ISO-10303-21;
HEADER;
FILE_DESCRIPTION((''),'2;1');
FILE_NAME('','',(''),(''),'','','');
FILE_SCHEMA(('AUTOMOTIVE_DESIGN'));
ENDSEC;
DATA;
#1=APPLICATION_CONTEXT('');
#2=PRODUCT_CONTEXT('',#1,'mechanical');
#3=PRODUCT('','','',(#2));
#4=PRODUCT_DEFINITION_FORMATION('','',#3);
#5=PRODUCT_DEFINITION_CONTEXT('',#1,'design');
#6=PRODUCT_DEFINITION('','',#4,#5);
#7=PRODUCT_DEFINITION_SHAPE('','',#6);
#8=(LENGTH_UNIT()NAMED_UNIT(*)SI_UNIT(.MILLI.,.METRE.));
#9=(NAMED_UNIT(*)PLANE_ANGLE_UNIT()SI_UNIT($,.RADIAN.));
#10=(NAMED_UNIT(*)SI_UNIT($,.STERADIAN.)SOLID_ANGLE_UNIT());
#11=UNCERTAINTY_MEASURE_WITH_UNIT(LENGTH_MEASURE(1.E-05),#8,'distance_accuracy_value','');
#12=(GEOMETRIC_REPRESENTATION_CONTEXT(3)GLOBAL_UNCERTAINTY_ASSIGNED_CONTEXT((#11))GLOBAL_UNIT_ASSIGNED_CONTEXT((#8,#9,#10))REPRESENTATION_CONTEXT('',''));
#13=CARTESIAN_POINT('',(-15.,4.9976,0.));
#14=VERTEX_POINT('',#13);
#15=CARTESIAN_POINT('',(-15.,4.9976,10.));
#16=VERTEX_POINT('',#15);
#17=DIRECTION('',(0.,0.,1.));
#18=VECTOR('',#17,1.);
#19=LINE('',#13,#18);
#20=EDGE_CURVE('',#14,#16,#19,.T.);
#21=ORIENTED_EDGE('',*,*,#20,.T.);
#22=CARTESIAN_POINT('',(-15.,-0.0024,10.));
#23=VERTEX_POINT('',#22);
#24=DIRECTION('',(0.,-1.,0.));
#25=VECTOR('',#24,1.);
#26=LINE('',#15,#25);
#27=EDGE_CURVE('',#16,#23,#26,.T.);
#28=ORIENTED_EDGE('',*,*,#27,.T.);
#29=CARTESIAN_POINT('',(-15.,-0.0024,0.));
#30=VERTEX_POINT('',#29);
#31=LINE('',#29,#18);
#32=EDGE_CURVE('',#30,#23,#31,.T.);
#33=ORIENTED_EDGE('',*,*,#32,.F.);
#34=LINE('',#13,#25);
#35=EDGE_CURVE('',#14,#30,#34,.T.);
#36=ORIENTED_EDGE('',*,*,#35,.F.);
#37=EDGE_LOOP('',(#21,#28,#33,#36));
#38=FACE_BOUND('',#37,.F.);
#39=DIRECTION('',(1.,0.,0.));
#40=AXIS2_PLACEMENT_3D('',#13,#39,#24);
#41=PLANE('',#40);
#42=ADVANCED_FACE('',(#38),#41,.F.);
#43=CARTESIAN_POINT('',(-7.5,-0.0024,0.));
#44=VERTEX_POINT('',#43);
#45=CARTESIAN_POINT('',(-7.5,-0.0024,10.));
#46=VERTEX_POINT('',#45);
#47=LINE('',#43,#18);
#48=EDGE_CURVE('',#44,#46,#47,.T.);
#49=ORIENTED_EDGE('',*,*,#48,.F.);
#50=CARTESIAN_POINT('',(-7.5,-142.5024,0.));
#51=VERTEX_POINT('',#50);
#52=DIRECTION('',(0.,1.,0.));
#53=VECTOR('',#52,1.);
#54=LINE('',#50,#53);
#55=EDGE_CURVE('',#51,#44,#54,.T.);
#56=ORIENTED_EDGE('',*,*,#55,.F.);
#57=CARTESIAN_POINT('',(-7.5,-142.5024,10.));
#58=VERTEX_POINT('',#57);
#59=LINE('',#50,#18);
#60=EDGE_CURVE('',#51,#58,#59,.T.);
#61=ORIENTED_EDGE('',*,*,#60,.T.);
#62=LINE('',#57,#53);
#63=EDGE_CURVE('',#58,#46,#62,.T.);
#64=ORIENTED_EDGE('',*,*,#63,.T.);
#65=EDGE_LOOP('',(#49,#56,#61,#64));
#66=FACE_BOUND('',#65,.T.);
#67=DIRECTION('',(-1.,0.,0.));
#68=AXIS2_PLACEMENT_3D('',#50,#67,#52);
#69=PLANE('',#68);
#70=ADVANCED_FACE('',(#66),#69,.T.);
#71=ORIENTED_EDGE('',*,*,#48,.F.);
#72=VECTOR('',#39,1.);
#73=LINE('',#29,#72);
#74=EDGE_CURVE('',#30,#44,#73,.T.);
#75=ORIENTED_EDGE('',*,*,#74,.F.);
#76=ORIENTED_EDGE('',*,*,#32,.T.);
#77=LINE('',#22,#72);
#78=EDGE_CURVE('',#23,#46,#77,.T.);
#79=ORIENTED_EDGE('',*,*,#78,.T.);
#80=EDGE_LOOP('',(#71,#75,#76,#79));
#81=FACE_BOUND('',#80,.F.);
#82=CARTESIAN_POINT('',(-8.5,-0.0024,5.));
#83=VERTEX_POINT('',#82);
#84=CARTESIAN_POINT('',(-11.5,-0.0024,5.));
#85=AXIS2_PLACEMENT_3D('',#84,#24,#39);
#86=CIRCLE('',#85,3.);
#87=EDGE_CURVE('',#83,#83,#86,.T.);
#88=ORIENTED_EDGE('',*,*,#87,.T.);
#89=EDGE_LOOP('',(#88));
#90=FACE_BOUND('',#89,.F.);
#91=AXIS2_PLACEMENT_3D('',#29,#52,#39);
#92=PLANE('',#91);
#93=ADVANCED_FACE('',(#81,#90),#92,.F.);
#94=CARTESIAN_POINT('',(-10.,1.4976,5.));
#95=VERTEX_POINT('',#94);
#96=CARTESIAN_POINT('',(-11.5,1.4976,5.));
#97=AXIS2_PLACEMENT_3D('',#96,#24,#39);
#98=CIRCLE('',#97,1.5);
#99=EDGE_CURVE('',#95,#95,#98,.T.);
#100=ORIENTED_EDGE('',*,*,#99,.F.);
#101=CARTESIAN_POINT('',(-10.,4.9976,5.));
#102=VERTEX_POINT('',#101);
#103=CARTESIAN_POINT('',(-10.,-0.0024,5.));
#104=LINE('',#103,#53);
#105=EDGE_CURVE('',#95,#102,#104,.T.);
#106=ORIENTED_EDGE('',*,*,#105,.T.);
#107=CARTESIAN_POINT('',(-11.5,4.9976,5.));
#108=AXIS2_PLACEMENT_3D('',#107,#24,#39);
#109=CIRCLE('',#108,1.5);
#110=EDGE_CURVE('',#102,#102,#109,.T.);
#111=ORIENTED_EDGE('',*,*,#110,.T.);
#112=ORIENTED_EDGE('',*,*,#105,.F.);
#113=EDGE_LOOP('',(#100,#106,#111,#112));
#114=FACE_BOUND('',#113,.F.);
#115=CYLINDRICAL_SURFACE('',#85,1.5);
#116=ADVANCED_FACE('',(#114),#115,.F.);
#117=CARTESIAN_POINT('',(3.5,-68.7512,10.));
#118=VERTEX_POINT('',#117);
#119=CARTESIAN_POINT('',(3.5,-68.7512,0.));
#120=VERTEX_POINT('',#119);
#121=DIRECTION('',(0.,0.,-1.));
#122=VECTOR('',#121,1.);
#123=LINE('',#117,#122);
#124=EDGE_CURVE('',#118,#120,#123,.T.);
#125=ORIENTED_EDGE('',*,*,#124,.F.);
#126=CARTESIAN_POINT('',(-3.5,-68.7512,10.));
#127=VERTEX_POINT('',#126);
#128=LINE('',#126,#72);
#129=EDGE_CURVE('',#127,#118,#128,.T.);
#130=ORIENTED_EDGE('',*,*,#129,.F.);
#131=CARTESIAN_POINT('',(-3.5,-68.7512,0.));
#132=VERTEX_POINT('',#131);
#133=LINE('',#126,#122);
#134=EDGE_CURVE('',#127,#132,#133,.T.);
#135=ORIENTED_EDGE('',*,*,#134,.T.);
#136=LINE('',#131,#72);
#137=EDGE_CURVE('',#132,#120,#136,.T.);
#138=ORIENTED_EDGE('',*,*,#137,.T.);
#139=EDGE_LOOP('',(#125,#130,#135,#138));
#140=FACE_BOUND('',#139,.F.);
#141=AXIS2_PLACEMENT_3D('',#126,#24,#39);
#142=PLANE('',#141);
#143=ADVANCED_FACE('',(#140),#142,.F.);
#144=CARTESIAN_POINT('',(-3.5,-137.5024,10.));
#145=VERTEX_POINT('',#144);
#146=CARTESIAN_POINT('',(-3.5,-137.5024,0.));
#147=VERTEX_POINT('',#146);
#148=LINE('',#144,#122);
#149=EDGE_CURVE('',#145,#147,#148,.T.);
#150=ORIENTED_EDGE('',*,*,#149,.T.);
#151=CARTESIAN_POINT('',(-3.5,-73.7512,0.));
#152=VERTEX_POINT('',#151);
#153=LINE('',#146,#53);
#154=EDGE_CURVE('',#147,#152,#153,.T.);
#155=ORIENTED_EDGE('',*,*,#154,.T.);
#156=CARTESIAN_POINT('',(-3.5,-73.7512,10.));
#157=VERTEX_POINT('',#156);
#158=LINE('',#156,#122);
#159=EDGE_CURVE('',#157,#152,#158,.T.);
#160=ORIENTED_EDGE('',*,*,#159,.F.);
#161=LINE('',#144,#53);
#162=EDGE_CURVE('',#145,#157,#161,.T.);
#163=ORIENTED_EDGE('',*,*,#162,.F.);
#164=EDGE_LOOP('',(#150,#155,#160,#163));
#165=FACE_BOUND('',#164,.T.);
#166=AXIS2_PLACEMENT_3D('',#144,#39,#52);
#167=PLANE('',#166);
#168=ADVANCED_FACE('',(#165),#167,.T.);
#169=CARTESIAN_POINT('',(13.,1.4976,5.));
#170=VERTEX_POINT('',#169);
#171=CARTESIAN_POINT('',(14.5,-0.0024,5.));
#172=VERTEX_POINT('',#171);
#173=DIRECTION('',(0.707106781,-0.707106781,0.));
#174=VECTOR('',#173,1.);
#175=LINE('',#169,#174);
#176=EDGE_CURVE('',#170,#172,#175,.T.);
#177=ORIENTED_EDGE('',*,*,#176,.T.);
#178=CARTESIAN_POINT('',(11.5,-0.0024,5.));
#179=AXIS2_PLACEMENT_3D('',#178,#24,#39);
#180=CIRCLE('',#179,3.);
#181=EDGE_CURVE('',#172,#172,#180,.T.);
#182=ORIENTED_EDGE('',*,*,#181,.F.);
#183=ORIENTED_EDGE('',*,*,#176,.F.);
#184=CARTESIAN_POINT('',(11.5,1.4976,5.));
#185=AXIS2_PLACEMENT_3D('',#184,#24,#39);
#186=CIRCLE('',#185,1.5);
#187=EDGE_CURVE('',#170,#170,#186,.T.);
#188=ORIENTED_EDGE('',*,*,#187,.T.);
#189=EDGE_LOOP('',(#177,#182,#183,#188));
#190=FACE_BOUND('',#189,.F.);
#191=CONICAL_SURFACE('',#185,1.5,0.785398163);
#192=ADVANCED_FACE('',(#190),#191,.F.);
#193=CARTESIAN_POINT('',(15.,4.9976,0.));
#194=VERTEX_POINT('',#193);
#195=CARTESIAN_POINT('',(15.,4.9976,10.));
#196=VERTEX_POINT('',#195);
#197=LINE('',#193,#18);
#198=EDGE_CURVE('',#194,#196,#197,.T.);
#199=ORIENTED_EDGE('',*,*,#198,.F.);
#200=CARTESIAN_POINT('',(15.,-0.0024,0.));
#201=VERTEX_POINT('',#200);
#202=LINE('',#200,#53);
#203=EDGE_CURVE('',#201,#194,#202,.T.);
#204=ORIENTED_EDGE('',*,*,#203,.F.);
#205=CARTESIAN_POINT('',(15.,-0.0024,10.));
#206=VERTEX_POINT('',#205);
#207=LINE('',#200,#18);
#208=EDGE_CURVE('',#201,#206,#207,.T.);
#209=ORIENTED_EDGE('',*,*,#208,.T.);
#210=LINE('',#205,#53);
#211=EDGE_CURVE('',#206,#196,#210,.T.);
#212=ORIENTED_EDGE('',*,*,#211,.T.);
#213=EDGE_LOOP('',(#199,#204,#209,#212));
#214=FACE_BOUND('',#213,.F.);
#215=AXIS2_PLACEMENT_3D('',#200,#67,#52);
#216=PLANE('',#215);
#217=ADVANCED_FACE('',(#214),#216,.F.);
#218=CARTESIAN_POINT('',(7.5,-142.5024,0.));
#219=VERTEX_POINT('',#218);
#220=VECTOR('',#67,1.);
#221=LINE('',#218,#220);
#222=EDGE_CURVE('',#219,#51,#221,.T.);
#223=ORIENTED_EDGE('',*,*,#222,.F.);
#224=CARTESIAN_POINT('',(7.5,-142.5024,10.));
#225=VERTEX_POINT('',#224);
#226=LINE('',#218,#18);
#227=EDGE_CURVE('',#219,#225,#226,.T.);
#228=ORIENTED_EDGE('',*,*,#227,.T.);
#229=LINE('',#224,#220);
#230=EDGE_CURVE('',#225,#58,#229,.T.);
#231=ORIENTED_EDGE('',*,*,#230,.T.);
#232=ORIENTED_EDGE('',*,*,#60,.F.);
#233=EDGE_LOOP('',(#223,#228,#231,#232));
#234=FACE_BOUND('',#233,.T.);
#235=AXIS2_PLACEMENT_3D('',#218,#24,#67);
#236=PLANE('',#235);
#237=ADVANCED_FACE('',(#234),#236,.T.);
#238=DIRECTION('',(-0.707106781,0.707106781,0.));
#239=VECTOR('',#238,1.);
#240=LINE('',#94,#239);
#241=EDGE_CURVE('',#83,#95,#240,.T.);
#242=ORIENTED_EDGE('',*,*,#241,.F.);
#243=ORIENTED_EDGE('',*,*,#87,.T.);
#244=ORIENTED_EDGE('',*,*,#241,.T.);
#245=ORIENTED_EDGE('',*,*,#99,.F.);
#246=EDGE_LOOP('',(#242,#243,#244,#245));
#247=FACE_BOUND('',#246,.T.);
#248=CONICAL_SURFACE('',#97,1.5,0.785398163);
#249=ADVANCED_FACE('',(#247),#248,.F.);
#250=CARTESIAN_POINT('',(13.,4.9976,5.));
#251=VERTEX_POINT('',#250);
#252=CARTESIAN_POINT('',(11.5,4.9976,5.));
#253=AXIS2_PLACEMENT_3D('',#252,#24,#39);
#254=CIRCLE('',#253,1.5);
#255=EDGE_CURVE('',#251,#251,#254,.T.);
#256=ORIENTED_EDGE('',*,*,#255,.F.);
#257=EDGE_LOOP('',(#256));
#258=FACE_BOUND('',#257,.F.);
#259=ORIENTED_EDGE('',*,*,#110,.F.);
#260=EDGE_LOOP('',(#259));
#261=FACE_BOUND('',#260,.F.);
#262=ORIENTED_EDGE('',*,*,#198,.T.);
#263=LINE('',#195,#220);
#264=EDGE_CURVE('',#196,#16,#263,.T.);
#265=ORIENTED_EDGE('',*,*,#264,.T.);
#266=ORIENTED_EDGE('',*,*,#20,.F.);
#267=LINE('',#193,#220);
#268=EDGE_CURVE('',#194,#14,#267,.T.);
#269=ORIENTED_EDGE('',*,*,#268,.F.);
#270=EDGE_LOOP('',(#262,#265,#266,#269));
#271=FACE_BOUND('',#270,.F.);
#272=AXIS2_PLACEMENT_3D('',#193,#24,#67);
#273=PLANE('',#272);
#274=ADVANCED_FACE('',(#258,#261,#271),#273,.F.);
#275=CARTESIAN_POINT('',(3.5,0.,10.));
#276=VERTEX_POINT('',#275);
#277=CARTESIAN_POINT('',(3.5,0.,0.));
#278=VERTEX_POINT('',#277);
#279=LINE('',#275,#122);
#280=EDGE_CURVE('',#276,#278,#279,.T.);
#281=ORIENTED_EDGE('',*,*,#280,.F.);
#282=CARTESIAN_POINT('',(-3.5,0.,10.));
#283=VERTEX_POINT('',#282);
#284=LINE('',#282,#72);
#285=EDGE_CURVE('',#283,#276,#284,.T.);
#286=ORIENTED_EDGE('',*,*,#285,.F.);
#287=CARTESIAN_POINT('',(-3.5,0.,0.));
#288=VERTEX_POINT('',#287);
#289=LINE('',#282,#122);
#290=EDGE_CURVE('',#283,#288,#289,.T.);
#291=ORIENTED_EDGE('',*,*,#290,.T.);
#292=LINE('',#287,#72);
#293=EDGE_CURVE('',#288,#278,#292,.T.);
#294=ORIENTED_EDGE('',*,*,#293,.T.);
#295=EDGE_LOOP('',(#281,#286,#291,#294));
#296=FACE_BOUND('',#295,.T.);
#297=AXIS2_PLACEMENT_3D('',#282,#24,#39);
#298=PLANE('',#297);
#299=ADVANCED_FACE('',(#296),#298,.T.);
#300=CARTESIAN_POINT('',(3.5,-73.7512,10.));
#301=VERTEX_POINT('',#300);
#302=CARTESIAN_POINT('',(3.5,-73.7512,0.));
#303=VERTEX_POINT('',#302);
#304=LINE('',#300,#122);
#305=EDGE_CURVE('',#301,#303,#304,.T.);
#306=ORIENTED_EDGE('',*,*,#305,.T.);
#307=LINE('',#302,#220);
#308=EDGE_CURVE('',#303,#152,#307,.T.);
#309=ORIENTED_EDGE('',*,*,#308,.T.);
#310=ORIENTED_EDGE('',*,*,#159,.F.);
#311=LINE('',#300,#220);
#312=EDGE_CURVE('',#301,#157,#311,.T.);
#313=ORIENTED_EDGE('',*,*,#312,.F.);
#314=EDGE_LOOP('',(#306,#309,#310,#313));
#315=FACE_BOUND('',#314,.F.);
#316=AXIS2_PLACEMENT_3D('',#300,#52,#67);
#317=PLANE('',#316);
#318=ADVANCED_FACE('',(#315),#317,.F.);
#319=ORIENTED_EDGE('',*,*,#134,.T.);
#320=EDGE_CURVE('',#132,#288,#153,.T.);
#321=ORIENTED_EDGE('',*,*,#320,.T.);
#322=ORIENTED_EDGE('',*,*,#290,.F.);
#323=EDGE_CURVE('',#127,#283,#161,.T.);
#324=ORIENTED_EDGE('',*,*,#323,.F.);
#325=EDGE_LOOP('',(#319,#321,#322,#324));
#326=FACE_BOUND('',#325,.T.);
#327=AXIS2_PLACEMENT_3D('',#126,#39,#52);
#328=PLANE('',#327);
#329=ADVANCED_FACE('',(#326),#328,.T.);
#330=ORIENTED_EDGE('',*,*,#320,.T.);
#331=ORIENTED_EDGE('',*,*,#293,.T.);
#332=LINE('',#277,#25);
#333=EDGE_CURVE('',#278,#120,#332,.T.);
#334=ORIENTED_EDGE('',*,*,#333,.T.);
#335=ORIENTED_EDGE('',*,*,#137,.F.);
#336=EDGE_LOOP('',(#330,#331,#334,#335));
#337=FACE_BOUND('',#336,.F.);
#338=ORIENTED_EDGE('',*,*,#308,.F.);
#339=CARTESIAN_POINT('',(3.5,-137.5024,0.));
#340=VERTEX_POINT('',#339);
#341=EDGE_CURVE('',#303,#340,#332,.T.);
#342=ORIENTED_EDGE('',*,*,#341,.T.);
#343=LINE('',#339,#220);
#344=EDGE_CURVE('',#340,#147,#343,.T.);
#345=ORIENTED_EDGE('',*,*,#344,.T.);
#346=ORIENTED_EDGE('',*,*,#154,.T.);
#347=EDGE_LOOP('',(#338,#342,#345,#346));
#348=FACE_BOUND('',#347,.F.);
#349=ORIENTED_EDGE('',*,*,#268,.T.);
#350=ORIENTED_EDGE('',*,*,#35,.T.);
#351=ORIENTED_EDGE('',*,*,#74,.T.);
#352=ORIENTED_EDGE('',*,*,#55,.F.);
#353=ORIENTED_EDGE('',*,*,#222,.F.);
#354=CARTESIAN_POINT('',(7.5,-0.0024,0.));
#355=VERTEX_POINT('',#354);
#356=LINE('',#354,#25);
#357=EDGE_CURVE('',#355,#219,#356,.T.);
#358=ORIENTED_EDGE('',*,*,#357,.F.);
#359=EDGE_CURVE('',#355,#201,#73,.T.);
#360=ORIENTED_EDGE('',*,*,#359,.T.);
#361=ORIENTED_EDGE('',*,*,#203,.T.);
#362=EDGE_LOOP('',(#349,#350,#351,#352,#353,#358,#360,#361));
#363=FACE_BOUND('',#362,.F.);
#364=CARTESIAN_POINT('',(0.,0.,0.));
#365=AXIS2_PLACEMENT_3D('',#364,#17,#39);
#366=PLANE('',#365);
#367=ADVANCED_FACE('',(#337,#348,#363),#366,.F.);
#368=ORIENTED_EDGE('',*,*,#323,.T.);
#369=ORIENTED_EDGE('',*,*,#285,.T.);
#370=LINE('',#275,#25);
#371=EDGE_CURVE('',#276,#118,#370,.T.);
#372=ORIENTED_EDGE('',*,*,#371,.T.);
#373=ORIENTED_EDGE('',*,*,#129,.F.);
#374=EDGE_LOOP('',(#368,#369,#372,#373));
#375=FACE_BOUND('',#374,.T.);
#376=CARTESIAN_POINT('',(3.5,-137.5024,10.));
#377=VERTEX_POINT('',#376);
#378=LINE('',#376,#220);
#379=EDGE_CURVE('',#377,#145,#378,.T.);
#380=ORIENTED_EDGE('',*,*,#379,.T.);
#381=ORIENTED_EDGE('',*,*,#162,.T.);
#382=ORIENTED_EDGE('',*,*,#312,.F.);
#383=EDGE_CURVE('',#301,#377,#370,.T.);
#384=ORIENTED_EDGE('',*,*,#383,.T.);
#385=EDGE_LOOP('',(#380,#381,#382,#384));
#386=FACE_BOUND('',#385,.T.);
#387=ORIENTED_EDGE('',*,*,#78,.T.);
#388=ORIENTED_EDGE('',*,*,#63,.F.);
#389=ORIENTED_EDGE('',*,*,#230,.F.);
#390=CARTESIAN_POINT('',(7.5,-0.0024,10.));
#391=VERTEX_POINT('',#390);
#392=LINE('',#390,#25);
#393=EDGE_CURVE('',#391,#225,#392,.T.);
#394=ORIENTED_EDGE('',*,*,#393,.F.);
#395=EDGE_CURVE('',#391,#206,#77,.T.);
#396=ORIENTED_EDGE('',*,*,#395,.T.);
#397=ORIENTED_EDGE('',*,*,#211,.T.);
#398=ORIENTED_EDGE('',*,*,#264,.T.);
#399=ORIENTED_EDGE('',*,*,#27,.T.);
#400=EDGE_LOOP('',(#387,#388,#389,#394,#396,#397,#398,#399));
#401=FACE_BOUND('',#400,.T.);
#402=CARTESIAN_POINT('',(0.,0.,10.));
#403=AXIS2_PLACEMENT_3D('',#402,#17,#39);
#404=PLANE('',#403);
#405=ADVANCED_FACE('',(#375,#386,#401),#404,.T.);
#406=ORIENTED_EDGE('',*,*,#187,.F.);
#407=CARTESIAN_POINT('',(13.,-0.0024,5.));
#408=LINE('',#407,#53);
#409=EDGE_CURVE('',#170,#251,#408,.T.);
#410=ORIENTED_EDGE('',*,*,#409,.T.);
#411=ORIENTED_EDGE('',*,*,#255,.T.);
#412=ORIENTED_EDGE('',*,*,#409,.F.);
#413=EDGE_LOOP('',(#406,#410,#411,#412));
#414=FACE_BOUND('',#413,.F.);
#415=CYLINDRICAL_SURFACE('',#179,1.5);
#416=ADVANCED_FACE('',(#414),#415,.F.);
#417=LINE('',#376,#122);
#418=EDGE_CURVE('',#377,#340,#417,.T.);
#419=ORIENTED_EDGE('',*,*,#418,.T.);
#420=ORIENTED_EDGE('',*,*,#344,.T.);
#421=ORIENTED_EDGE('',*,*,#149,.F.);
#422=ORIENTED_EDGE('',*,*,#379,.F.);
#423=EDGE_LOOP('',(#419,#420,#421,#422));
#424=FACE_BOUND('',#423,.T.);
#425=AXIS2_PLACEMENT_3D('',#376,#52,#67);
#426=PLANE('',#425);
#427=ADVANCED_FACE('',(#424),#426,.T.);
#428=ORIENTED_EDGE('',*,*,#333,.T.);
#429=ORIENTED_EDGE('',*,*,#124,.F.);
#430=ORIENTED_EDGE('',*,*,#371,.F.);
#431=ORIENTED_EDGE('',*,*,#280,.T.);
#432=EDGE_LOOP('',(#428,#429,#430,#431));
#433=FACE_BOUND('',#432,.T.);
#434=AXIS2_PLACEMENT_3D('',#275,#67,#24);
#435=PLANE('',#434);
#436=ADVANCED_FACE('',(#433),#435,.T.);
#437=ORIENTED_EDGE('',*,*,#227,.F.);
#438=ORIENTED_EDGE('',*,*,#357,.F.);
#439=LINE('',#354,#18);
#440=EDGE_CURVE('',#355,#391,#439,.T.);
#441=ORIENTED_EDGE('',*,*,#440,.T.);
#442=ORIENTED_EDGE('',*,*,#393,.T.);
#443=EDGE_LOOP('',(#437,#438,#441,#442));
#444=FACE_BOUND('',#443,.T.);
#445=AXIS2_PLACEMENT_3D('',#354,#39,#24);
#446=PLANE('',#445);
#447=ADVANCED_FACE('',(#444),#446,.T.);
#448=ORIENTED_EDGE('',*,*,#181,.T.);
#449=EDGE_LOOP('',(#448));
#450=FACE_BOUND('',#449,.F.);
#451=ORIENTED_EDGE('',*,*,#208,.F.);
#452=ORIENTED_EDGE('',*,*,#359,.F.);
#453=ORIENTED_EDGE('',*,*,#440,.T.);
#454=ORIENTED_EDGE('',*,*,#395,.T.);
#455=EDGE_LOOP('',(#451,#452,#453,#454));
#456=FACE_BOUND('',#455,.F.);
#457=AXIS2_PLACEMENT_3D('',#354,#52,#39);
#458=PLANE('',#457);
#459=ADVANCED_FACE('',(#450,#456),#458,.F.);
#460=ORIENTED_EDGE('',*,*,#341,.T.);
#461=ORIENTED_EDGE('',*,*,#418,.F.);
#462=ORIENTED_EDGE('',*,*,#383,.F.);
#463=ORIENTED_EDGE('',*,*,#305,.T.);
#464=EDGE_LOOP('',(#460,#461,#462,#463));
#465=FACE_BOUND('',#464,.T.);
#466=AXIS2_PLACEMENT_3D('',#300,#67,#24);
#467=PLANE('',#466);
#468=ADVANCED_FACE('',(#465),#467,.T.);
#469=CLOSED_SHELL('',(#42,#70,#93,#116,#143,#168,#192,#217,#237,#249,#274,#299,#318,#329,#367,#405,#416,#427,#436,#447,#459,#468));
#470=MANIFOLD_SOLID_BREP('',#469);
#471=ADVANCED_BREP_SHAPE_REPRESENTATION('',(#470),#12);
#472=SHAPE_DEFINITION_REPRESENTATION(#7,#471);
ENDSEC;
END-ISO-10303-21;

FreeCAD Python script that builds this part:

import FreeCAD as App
import Part
import Sketcher

V = App.Vector


def edges_at(feature, points):
    """Names of the edges that pass closest to the given points."""
    edges = feature.Shape.Edges
    near = lambda p: min(range(len(edges)), key=lambda i: edges[i].distToShape(Part.Vertex(*p))[0])
    return sorted({f"Edge{near(p) + 1}" for p in points})


def add_polygon(sketch, points):
    """Adds a closed chain of lines whose ends are joined by coincident constraints."""
    first, n = sketch.GeometryCount, len(points)
    for a, b in zip(points, points[1:] + points[:1]):
        sketch.addGeometry(Part.LineSegment(App.Vector(*a, 0), App.Vector(*b, 0)), False)
    for i in range(n):
        sketch.addConstraint(Sketcher.Constraint("Coincident", first + i, 2, first + (i + 1) % n, 1))

doc = App.newDocument("Part")
body = doc.addObject("PartDesign::Body", "Body")

# Sketch on XY plane
sketch1 = body.newObject("Sketcher::SketchObject", "Sketch")
sketch1.AttachmentSupport = (doc.getObject("XY_Plane"), [""])
sketch1.MapMode = "FlatFace"
add_polygon(sketch1, [(-15, 5), (-15, 0), (-8, 0), (-8, -143), (8, -143), (8, 0), (15, 0), (15, 5)])  # lines 0-7
sketch1.addConstraint([
    Sketcher.Constraint("Vertical", 0),
    Sketcher.Constraint("Horizontal", 1),
    Sketcher.Constraint("Vertical", 2),
    Sketcher.Constraint("Horizontal", 3),
    Sketcher.Constraint("Vertical", 4),
    Sketcher.Constraint("Horizontal", 5),
    Sketcher.Constraint("Vertical", 6),
    Sketcher.Constraint("Horizontal", 7),
    Sketcher.Constraint("Symmetric", 1, 2, 4, 2, -2),
    Sketcher.Constraint("Equal", 1, 5),
    Sketcher.Constraint("DistanceX", 3, 1, 3, 2, 15.0),
    Sketcher.Constraint("DistanceX", 7, 2, 7, 1, 30.0),
    Sketcher.Constraint("DistanceY", 0, 2, 0, 1, 5.0),
    Sketcher.Constraint("DistanceY", 3, 2, 6, 2, 147.5),
    Sketcher.Constraint("DistanceY", 0, 2, -1, 1, 0.0024),
])
pad1 = body.newObject("PartDesign::Pad", "Pad")
pad1.Profile = sketch1
pad1.Length = 10

# Sketch on XY plane
sketch2 = body.newObject("Sketcher::SketchObject", "Sketch001")
sketch2.AttachmentSupport = (doc.getObject("XY_Plane"), [""])
sketch2.MapMode = "FlatFace"
sketch2.AttachmentOffset = App.Placement(V(0, 0, 10), App.Rotation())
add_polygon(sketch2, [(4, 0), (-4, 0), (-4, -69), (4, -69)])  # lines 0-3
add_polygon(sketch2, [(4, -74), (-4, -74), (-4, -138), (4, -138)])  # lines 4-7
sketch2.addConstraint([
    Sketcher.Constraint("Horizontal", 0),
    Sketcher.Constraint("Vertical", 1),
    Sketcher.Constraint("Horizontal", 2),
    Sketcher.Constraint("Vertical", 3),
    Sketcher.Constraint("Horizontal", 4),
    Sketcher.Constraint("Vertical", 5),
    Sketcher.Constraint("Horizontal", 6),
    Sketcher.Constraint("Vertical", 7),
    Sketcher.Constraint("Symmetric", 0, 2, 3, 2, -1, 1),
    Sketcher.Constraint("Vertical", 1, 2, 4, 2),
    Sketcher.Constraint("Vertical", 3, 2, 6, 2),
    Sketcher.Constraint("DistanceY", 4, 2, 1, 2, 5.0),
    Sketcher.Constraint("DistanceX", 0, 2, 0, 1, 7.0),
    Sketcher.Constraint("DistanceY", 1, 2, 1, 1, 68.7512),
    Sketcher.Constraint("DistanceY", 5, 2, 5, 1, 63.7512),
])
pocket1 = body.newObject("PartDesign::Pocket", "Pocket")
pocket1.Profile = sketch2
pocket1.Length = 10

# Sketch on XZ plane
sketch3 = body.newObject("Sketcher::SketchObject", "Sketch002")
sketch3.AttachmentSupport = (doc.getObject("XZ_Plane"), [""])
sketch3.MapMode = "FlatFace"
sketch3.AttachmentOffset = App.Placement(V(0, 0, 0.0024), App.Rotation())
sketch3.addGeometry([
    Part.Circle(V(11.5, 5, 0), V(0, 0, 1), 1.5),
    Part.Circle(V(-11.5, 5, 0), V(0, 0, 1), 1.5),
], False)
sketch3.addConstraint([
    Sketcher.Constraint("Equal", 0, 1),
    Sketcher.Constraint("Symmetric", 0, 3, 1, 3, -2),
    Sketcher.Constraint("Diameter", 0, 3.0),
    Sketcher.Constraint("DistanceY", -1, 1, 0, 3, 5.0),
    Sketcher.Constraint("DistanceX", 1, 3, 0, 3, 23.0),
])
pocket2 = body.newObject("PartDesign::Pocket", "Pocket001")
pocket2.Profile = sketch3
pocket2.Length = 10
doc.recompute()

chamfer = body.newObject("PartDesign::Chamfer", "Chamfer")
chamfer.Base = (pocket2, edges_at(pocket2, [(-13, -0.002, 5), (10, -0.002, 5)]))
chamfer.Size = 1.5

doc.recompute()
